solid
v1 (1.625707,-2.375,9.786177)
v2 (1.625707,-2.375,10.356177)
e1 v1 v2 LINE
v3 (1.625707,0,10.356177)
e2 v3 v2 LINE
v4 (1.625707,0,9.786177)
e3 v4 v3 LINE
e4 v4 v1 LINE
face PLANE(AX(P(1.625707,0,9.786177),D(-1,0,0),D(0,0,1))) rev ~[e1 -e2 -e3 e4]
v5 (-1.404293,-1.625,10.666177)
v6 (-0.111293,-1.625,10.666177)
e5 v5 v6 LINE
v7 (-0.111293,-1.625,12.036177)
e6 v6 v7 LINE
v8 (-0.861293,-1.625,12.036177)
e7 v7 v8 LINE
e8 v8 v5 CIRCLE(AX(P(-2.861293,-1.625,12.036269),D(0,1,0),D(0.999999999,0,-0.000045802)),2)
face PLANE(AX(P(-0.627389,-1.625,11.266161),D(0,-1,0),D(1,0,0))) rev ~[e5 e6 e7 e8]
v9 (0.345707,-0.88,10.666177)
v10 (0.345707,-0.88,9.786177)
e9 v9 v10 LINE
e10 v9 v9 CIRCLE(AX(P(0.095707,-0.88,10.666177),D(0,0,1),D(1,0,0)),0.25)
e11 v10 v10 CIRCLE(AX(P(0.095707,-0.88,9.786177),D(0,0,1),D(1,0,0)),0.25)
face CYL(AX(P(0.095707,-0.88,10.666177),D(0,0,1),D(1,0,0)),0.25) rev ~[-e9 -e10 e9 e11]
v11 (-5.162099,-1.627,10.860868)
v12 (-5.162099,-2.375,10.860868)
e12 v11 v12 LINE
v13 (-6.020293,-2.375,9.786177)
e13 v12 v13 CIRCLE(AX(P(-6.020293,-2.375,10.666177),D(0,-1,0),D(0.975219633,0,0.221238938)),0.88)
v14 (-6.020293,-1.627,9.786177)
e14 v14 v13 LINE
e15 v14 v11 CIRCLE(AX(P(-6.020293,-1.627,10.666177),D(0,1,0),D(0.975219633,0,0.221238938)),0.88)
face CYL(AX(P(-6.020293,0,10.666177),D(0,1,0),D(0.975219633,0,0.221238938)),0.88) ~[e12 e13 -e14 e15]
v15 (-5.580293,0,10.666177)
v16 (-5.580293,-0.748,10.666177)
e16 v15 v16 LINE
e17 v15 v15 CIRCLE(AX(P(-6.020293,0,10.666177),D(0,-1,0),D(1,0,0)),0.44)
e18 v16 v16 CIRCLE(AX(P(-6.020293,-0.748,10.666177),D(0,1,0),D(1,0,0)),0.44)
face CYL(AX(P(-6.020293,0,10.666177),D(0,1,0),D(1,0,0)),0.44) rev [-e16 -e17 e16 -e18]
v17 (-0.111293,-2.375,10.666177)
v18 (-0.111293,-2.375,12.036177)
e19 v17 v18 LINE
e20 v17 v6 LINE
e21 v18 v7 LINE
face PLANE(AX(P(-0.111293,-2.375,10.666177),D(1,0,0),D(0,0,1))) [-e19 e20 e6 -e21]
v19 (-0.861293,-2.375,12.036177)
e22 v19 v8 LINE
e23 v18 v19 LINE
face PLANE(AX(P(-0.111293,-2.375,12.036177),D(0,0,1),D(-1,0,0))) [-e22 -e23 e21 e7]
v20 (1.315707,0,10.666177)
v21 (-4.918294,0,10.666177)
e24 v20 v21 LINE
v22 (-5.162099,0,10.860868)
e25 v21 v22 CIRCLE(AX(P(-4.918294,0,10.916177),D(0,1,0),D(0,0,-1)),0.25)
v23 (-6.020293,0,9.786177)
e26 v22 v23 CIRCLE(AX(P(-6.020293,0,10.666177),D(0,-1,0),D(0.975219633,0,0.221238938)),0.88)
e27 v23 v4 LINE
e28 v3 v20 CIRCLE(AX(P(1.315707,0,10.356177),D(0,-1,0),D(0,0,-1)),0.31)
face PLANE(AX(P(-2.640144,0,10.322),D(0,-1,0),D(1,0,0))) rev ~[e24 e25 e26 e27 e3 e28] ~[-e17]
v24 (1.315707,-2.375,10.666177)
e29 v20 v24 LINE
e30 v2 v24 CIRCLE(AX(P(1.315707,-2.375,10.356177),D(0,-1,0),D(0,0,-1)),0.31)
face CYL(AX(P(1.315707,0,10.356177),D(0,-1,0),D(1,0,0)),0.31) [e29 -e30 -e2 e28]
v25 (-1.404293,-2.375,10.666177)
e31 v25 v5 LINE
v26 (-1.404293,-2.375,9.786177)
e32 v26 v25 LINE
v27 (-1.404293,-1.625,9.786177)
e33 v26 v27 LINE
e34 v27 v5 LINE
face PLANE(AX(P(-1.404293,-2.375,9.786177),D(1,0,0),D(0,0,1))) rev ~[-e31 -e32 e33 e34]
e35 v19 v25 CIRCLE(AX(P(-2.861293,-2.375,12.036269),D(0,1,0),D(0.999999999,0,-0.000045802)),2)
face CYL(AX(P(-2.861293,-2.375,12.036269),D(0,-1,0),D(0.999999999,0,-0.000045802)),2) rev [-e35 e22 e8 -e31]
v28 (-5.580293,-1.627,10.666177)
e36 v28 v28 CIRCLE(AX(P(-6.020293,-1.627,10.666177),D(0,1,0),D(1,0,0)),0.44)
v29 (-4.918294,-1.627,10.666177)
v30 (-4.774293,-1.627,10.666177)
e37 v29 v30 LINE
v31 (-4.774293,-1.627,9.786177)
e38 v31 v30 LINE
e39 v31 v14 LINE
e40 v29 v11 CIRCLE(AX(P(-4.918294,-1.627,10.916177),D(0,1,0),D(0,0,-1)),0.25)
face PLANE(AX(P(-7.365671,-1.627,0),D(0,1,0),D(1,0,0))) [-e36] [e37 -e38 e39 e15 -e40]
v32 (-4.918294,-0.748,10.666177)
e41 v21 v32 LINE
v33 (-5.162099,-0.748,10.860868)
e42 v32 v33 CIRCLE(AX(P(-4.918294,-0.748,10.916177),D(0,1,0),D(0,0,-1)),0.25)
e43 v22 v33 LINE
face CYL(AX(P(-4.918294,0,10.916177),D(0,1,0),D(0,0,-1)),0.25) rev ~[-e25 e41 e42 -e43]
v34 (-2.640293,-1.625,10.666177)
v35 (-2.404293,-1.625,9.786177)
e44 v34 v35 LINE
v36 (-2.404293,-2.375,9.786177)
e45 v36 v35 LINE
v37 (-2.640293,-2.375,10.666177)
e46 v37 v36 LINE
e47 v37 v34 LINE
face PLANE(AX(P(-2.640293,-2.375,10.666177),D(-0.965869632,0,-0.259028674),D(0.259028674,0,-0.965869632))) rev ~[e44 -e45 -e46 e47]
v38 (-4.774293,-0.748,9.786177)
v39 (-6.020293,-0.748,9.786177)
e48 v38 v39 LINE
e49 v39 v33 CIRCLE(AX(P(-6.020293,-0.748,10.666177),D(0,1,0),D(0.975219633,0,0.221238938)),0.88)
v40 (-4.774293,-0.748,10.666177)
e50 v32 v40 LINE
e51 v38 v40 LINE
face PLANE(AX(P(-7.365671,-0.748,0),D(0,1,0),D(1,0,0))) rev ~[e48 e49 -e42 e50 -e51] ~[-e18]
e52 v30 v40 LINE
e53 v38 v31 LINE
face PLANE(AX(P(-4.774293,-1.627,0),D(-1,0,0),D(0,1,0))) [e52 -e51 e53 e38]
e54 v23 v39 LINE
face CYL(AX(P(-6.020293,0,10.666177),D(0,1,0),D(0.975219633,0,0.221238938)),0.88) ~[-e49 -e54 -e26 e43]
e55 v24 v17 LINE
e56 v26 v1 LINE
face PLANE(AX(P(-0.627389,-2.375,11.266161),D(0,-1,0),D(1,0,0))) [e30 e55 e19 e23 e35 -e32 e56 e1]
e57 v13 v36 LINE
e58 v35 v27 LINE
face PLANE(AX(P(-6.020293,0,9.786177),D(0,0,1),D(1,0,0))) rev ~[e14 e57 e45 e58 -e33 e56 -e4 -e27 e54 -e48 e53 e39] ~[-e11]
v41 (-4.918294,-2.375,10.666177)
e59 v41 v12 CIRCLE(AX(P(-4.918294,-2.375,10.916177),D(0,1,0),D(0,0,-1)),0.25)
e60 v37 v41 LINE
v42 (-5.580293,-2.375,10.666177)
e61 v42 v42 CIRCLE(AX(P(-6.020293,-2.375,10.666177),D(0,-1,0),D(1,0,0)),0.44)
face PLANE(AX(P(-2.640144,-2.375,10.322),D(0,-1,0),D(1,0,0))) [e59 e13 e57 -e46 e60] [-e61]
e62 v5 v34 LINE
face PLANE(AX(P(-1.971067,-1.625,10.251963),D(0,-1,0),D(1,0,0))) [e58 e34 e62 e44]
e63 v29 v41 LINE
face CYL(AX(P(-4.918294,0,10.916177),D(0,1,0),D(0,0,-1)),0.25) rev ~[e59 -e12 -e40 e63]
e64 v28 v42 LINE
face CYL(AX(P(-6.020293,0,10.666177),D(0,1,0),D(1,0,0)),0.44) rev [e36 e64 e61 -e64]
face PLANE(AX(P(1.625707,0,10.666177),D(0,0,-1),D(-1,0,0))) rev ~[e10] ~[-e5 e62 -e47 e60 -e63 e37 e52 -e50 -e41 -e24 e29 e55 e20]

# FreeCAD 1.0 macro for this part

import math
import FreeCAD as App
import Part
import Sketcher


def edges_at(feature, points):
    """Names of the edges that pass closest to the given points."""
    edges = feature.Shape.Edges
    near = lambda p: min(range(len(edges)), key=lambda i: edges[i].distToShape(Part.Vertex(*p))[0])
    return sorted({f"Edge{near(p) + 1}" for p in points})

doc = App.newDocument("Part")
body = doc.addObject("PartDesign::Body", "Body")

# Sketch on XZ plane
sketch1 = body.newObject("Sketcher::SketchObject", "Sketch")
sketch1.AttachmentSupport = (doc.getObject("XZ_Plane"), [""])
sketch1.MapMode = "FlatFace"
sketch1.addGeometry([
    Part.ArcOfCircle(Part.Circle(App.Vector(-4.92, 10.92, 0), App.Vector(0, 0, 1), 0.25), math.radians(-167), math.radians(-90)),  # 0
    Part.ArcOfCircle(Part.Circle(App.Vector(-6.02, 10.67, 0), App.Vector(0, 0, 1), 0.88), math.radians(13), math.radians(270)),  # 1
    Part.LineSegment(App.Vector(-6.02, 9.79, 0), App.Vector(1.63, 9.79, 0)),  # 2
    Part.LineSegment(App.Vector(1.63, 9.79, 0), App.Vector(1.63, 10.67, 0)),  # 3
    Part.LineSegment(App.Vector(1.63, 10.67, 0), App.Vector(-4.92, 10.67, 0)),  # 4
    Part.Circle(App.Vector(-6.02, 10.67, 0), App.Vector(0, 0, 1), 0.44),  # 5
], False)
sketch1.addConstraint([
    Sketcher.Constraint("Tangent", 0, 1, 1, 1),
    Sketcher.Constraint("Tangent", 1, 2, 2, 1),
    Sketcher.Constraint("Coincident", 2, 2, 3, 1),
    Sketcher.Constraint("Coincident", 3, 2, 4, 1),
    Sketcher.Constraint("Tangent", 4, 2, 0, 2),
    Sketcher.Constraint("Horizontal", 2),
    Sketcher.Constraint("Vertical", 3),
    Sketcher.Constraint("Horizontal", 4),
    Sketcher.Constraint("Coincident", 5, 3, 1, 3),
    Sketcher.Constraint("Horizontal", 5, 3, 3, 2),
    Sketcher.Constraint("Diameter", 5, 0.88),
    Sketcher.Constraint("Radius", 0, 0.25),
    Sketcher.Constraint("Radius", 1, 0.88),
    Sketcher.Constraint("DistanceX", 2, 1, 2, 2, 7.646),
    Sketcher.Constraint("DistanceX", 0, 1, -1, 1, 5.162099),
    Sketcher.Constraint("DistanceY", -1, 1, 0, 3, 10.916177),
])
pad1 = body.newObject("PartDesign::Pad", "Pad")
pad1.Profile = sketch1
pad1.Length = 2.375

# Sketch on XY plane
sketch2 = body.newObject("Sketcher::SketchObject", "Sketch001")
sketch2.AttachmentSupport = (doc.getObject("XY_Plane"), [""])
sketch2.MapMode = "FlatFace"
sketch2.addGeometry([
    Part.LineSegment(App.Vector(-7.4, -0.7, 0), App.Vector(-7.4, -1.6, 0)),
    Part.LineSegment(App.Vector(-7.4, -1.6, 0), App.Vector(-4.8, -1.6, 0)),
    Part.LineSegment(App.Vector(-4.8, -1.6, 0), App.Vector(-4.8, -0.7, 0)),
    Part.LineSegment(App.Vector(-4.8, -0.7, 0), App.Vector(-7.4, -0.7, 0)),
], False)
sketch2.addConstraint([
    Sketcher.Constraint("Coincident", 0, 2, 1, 1),
    Sketcher.Constraint("Coincident", 1, 2, 2, 1),
    Sketcher.Constraint("Coincident", 2, 2, 3, 1),
    Sketcher.Constraint("Coincident", 3, 2, 0, 1),
    Sketcher.Constraint("Vertical", 0),
    Sketcher.Constraint("Horizontal", 1),
    Sketcher.Constraint("Vertical", 2),
    Sketcher.Constraint("Horizontal", 3),
    Sketcher.Constraint("DistanceY", 0, 2, 0, 1, 0.879),
    Sketcher.Constraint("DistanceY", 0, 2, -1, 1, 1.627),
    Sketcher.Constraint("DistanceX", 1, 1, 1, 2, 2.591379),
    Sketcher.Constraint("DistanceX", 0, 2, -1, 1, 7.365671),
])
pocket1 = body.newObject("PartDesign::Pocket", "Pocket")
pocket1.Profile = sketch2
pocket1.Length = 25
pocket1.Reversed = True

# Sketch on XZ plane
sketch3 = body.newObject("Sketcher::SketchObject", "Sketch002")
sketch3.AttachmentSupport = (doc.getObject("XZ_Plane"), [""])
sketch3.MapMode = "FlatFace"
sketch3.AttachmentOffset = App.Placement(App.Vector(0, 0, 2.375), App.Rotation())
sketch3.addGeometry([
    Part.LineSegment(App.Vector(-1.4, 10.7, 0), App.Vector(-2.6, 10.7, 0)),
    Part.LineSegment(App.Vector(-2.6, 10.7, 0), App.Vector(-2.4, 9.8, 0)),
    Part.LineSegment(App.Vector(-2.4, 9.8, 0), App.Vector(-1.4, 9.8, 0)),
    Part.LineSegment(App.Vector(-1.4, 9.8, 0), App.Vector(-1.4, 10.7, 0)),
], False)
sketch3.addConstraint([
    Sketcher.Constraint("Coincident", 0, 2, 1, 1),
    Sketcher.Constraint("Coincident", 1, 2, 2, 1),
    Sketcher.Constraint("Coincident", 2, 2, 3, 1),
    Sketcher.Constraint("Coincident", 3, 2, 0, 1),
    Sketcher.Constraint("Horizontal", 0),
    Sketcher.Constraint("Horizontal", 2),
    Sketcher.Constraint("Vertical", 3),
    Sketcher.Constraint("DistanceX", 2, 1, 2, 2, 1.0),
    Sketcher.Constraint("DistanceY", 3, 1, 3, 2, 0.88),
    Sketcher.Constraint("DistanceX", 0, 2, 0, 1, 1.236),
    Sketcher.Constraint("DistanceX", 0, 2, -1, 1, 2.640293),
    Sketcher.Constraint("DistanceY", -1, 1, 0, 2, 10.666177),
])
pocket2 = body.newObject("PartDesign::Pocket", "Pocket001")
pocket2.Profile = sketch3
pocket2.Length = 0.75

# Sketch on XZ plane
sketch4 = body.newObject("Sketcher::SketchObject", "Sketch003")
sketch4.AttachmentSupport = (doc.getObject("XZ_Plane"), [""])
sketch4.MapMode = "FlatFace"
sketch4.AttachmentOffset = App.Placement(App.Vector(0, 0, 2.375), App.Rotation())
sketch4.addGeometry([
    Part.ArcOfCircle(Part.Circle(App.Vector(-2.9, 12, 0), App.Vector(0, 0, 1), 2), math.radians(-43), math.radians(0)),
    Part.LineSegment(App.Vector(-1.4, 10.7, 0), App.Vector(-0.1, 10.7, 0)),
    Part.LineSegment(App.Vector(-0.1, 10.7, 0), App.Vector(-0.1, 12, 0)),
    Part.LineSegment(App.Vector(-0.1, 12, 0), App.Vector(-0.9, 12, 0)),
], False)
sketch4.addConstraint([
    Sketcher.Constraint("Coincident", 0, 1, 1, 1),
    Sketcher.Constraint("Coincident", 1, 2, 2, 1),
    Sketcher.Constraint("Coincident", 2, 2, 3, 1),
    Sketcher.Constraint("Coincident", 3, 2, 0, 2),
    Sketcher.Constraint("Horizontal", 1),
    Sketcher.Constraint("Vertical", 2),
    Sketcher.Constraint("Horizontal", 3),
    Sketcher.Constraint("Radius", 0, 2.0),
    Sketcher.Constraint("DistanceX", 3, 2, 3, 1, 0.75),
    Sketcher.Constraint("DistanceY", 2, 1, 2, 2, 1.37),
    Sketcher.Constraint("DistanceX", 1, 1, 1, 2, 1.293),
    Sketcher.Constraint("DistanceY", -1, 1, 0, 3, 12.036269),
    Sketcher.Constraint("DistanceX", 0, 3, -1, 1, 2.861293),
])
pad2 = body.newObject("PartDesign::Pad", "Pad001")
pad2.Profile = sketch4
pad2.Length = 0.75
pad2.Reversed = True

# Sketch on XY plane
sketch5 = body.newObject("Sketcher::SketchObject", "Sketch004")
sketch5.AttachmentSupport = (doc.getObject("XY_Plane"), [""])
sketch5.MapMode = "FlatFace"
sketch5.AttachmentOffset = App.Placement(App.Vector(0, 0, 10.666177), App.Rotation())
sketch5.addGeometry(Part.Circle(App.Vector(0.1, -0.88, 0), App.Vector(0, 0, 1), 0.25), False)
sketch5.addConstraint([
    Sketcher.Constraint("Diameter", 0, 0.5),
    Sketcher.Constraint("DistanceY", 0, 3, -1, 1, 0.88),
    Sketcher.Constraint("DistanceX", -1, 1, 0, 3, 0.095707),
])
pocket3 = body.newObject("PartDesign::Pocket", "Pocket002")
pocket3.Profile = sketch5
pocket3.Length = 25
doc.recompute()

fillet = body.newObject("PartDesign::Fillet", "Fillet")
fillet.Base = (pocket3, edges_at(pocket3, [(1.626, -1.188, 10.666)]))
fillet.Radius = 0.31

doc.recompute()
